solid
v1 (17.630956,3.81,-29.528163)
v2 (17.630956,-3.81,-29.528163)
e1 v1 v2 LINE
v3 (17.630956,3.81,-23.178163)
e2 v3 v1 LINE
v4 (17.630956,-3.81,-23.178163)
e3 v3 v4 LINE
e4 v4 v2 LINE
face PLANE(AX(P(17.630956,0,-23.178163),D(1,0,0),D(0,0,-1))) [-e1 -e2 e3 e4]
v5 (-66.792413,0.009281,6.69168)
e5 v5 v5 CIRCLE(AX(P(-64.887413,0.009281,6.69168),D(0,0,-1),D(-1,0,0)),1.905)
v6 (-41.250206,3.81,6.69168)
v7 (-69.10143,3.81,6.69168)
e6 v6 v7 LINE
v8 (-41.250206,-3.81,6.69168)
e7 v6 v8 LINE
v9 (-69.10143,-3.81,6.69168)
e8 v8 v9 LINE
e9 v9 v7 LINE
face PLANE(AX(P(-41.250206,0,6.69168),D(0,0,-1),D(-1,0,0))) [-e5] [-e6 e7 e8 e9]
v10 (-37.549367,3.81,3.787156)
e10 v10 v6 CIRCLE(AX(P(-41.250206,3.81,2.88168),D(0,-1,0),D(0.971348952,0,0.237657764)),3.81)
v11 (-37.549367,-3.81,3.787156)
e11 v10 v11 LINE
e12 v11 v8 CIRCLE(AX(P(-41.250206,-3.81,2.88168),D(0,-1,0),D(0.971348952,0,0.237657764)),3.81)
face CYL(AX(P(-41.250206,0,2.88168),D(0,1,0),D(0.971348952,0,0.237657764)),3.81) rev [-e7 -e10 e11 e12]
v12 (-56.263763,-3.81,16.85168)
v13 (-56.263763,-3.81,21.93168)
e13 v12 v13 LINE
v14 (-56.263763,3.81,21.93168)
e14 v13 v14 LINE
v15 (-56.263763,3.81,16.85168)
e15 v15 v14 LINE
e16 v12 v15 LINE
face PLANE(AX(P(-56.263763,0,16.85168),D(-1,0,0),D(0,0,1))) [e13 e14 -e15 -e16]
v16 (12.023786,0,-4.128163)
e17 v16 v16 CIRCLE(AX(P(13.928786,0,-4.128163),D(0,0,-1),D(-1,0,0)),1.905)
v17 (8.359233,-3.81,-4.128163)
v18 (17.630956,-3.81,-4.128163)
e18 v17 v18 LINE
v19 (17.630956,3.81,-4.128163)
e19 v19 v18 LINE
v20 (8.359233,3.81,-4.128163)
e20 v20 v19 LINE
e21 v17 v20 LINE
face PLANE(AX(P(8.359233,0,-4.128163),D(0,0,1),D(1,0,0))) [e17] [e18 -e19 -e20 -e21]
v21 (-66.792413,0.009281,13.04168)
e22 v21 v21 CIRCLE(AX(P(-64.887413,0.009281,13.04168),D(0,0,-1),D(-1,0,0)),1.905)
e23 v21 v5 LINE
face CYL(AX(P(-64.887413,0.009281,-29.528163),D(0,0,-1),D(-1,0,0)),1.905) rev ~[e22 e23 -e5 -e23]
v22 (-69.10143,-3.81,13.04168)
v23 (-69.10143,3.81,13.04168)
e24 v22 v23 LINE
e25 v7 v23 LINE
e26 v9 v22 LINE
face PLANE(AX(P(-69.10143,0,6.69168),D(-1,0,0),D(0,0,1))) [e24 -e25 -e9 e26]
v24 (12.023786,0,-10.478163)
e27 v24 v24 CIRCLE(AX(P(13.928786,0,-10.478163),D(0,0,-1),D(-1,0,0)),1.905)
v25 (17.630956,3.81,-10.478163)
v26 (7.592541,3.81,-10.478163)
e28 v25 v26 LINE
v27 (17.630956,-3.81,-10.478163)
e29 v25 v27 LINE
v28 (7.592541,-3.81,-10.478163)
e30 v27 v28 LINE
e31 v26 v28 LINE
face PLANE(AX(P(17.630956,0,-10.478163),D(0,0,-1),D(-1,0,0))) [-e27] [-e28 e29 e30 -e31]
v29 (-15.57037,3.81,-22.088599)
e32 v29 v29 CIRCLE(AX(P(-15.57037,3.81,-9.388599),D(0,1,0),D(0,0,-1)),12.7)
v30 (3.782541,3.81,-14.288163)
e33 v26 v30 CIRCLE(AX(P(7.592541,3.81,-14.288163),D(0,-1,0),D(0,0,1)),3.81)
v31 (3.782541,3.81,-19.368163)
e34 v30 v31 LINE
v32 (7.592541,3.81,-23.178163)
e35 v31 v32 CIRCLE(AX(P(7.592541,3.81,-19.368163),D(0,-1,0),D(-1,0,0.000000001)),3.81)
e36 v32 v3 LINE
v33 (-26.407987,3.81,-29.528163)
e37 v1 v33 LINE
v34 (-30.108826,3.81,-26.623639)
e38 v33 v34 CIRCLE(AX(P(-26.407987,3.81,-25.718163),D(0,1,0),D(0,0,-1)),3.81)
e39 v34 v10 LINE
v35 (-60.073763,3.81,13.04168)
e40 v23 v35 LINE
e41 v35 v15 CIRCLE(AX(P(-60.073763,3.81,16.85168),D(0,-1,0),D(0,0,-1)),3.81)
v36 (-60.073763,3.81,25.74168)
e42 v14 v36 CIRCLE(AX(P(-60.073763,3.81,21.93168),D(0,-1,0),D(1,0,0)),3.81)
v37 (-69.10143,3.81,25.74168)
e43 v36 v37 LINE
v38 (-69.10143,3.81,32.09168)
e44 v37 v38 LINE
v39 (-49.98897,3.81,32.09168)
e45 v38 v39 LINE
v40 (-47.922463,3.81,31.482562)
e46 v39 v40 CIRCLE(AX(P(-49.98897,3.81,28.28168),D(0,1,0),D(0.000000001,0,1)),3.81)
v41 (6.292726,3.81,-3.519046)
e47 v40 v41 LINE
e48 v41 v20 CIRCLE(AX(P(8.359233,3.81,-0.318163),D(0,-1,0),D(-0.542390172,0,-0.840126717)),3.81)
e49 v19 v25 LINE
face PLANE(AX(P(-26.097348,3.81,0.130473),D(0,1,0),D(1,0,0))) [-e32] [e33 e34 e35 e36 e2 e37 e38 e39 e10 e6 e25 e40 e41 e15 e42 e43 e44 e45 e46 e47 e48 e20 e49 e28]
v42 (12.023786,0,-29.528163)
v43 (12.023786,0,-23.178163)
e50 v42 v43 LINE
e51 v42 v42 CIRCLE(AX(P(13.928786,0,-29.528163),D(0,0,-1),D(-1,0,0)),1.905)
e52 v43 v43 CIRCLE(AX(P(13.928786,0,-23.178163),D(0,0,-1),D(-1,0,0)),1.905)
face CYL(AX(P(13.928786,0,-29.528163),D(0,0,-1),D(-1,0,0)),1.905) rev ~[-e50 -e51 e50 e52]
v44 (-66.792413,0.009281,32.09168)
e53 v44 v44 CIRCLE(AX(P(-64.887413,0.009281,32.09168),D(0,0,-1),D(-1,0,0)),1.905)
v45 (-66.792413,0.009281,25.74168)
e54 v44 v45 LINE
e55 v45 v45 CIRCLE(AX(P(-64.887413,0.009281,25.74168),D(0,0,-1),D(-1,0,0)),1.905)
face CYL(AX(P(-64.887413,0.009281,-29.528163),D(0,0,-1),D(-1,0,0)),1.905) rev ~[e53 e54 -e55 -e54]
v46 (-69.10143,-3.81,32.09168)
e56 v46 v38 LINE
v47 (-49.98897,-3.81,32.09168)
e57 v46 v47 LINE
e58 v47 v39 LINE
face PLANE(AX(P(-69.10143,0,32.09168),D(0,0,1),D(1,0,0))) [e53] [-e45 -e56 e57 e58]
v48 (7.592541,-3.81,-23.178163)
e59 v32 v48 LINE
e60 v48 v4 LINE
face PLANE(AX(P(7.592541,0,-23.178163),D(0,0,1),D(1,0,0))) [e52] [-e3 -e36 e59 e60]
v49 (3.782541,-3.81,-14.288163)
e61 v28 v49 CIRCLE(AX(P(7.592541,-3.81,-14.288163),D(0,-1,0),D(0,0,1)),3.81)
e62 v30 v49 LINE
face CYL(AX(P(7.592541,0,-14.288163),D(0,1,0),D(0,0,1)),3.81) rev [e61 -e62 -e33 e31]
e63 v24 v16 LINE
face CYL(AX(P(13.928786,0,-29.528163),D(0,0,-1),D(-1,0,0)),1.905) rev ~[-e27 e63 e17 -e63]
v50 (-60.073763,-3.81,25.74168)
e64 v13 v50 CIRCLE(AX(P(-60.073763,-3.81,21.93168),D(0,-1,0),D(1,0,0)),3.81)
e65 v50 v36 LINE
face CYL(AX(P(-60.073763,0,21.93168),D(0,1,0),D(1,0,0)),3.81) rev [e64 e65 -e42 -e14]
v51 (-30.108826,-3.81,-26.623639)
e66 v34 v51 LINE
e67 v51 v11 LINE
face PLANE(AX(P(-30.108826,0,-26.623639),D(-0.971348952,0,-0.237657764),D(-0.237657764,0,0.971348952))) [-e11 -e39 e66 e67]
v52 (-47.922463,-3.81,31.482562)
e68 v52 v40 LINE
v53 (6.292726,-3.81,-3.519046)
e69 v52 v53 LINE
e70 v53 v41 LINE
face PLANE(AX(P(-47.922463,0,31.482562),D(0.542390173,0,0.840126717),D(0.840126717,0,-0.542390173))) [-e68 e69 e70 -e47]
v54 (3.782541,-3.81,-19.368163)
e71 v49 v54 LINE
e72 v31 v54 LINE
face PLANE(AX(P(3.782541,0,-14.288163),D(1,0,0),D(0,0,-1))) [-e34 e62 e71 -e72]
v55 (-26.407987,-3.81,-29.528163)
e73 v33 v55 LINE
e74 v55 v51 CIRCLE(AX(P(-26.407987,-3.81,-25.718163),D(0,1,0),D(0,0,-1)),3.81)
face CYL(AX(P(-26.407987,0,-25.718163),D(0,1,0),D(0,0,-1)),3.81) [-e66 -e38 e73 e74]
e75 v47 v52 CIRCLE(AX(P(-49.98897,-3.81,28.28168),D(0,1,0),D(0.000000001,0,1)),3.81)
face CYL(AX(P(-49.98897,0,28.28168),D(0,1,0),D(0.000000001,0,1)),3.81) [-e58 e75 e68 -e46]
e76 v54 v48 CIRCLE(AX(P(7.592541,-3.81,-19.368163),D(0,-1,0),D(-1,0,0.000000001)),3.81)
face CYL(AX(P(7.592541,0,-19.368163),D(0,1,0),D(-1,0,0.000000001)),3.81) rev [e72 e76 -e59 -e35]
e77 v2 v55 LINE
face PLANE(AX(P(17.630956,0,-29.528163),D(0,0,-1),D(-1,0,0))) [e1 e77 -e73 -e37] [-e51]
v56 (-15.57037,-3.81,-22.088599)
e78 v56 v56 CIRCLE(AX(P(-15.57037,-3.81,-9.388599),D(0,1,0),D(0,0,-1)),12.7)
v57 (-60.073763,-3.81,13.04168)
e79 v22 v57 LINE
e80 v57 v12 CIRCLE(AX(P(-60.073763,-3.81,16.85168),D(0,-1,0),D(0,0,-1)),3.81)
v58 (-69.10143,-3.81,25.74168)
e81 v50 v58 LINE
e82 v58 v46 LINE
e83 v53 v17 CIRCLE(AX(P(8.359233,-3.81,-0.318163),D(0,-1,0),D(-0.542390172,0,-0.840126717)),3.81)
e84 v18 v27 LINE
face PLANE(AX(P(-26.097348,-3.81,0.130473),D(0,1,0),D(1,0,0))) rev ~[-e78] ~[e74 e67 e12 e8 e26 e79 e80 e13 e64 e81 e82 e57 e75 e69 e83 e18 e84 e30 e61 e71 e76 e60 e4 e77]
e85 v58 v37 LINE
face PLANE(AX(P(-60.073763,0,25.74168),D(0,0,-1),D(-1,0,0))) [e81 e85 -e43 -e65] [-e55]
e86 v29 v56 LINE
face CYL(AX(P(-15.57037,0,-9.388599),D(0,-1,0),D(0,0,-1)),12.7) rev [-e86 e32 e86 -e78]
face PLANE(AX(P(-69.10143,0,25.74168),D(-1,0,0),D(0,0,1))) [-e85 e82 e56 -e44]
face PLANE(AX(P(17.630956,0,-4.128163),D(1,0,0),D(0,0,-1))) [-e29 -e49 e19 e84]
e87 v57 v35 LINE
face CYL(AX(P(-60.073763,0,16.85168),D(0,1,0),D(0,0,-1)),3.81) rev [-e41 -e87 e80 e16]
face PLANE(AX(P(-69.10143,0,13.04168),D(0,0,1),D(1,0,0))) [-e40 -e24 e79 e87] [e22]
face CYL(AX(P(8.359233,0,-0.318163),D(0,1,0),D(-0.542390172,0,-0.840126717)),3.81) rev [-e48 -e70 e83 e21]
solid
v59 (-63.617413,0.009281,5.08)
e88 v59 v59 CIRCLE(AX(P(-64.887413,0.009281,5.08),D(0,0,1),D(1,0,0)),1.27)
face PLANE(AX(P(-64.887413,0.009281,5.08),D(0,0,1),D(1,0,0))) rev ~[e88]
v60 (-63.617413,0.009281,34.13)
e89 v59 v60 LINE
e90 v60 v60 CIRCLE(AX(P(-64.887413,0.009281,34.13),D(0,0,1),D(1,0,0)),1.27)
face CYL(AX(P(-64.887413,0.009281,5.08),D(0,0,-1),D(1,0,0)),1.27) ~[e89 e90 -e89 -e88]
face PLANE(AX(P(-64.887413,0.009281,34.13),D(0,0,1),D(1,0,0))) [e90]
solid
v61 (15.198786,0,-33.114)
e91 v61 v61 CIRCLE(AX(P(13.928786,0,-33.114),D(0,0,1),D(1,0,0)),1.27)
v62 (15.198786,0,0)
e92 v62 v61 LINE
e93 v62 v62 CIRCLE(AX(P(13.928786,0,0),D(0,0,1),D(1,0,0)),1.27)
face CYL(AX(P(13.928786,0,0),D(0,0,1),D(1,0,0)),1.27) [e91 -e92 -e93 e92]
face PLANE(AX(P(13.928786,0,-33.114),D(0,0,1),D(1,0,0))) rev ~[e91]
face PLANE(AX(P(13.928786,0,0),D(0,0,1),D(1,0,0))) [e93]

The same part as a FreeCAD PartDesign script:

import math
import FreeCAD as App
import Part
import Sketcher
from FreeCAD import Vector
Q = App.Units.Quantity

doc = App.newDocument("Part")
body = doc.addObject("PartDesign::Body", "Body")

sketch1 = body.newObject("Sketcher::SketchObject", "Sketch")
sketch1.AttachmentSupport = (doc.getObject("XZ_Plane"), [""])
sketch1.MapMode = "FlatFace"
sketch1.addGeometry(Part.LineSegment(Vector(-41.3, 6.7, 0), Vector(-69.1, 6.7, 0)), False)
sketch1.addGeometry(Part.LineSegment(Vector(-69.1, 6.7, 0), Vector(-69.1, 13, 0)), False)
sketch1.addGeometry(Part.LineSegment(Vector(-69.1, 13, 0), Vector(-60.1, 13, 0)), False)
sketch1.addGeometry(Part.ArcOfCircle(Part.Circle(Vector(-60.1, 16.9, 0), Vector(0, 0, 1), 3.8), math.radians(-90), math.radians(0)), False)
sketch1.addGeometry(Part.LineSegment(Vector(-56.3, 16.9, 0), Vector(-56.3, 21.9, 0)), False)
sketch1.addGeometry(Part.ArcOfCircle(Part.Circle(Vector(-60.1, 21.9, 0), Vector(0, 0, 1), 3.8), math.radians(0), math.radians(90)), False)
sketch1.addGeometry(Part.LineSegment(Vector(-60.1, 25.7, 0), Vector(-69.1, 25.7, 0)), False)
sketch1.addGeometry(Part.LineSegment(Vector(-69.1, 25.7, 0), Vector(-69.1, 32.1, 0)), False)
sketch1.addGeometry(Part.LineSegment(Vector(-69.1, 32.1, 0), Vector(-50, 32.1, 0)), False)
sketch1.addGeometry(Part.ArcOfCircle(Part.Circle(Vector(-50, 28.3, 0), Vector(0, 0, 1), 3.8), math.radians(57), math.radians(90)), False)
sketch1.addGeometry(Part.LineSegment(Vector(-47.9, 31.5, 0), Vector(6.3, -3.5, 0)), False)
sketch1.addGeometry(Part.ArcOfCircle(Part.Circle(Vector(8.4, -0.3, 0), Vector(0, 0, 1), 3.8), math.radians(-123), math.radians(-90)), False)
sketch1.addGeometry(Part.LineSegment(Vector(8.4, -4.1, 0), Vector(17.6, -4.1, 0)), False)
sketch1.addGeometry(Part.LineSegment(Vector(17.6, -4.1, 0), Vector(17.6, -10.5, 0)), False)
sketch1.addGeometry(Part.LineSegment(Vector(17.6, -10.5, 0), Vector(7.6, -10.5, 0)), False)
sketch1.addGeometry(Part.ArcOfCircle(Part.Circle(Vector(7.6, -14.3, 0), Vector(0, 0, 1), 3.8), math.radians(90), math.radians(180)), False)
sketch1.addGeometry(Part.LineSegment(Vector(3.8, -14.3, 0), Vector(3.8, -19.4, 0)), False)
sketch1.addGeometry(Part.ArcOfCircle(Part.Circle(Vector(7.6, -19.4, 0), Vector(0, 0, 1), 3.8), math.radians(180), math.radians(270)), False)
sketch1.addGeometry(Part.LineSegment(Vector(7.6, -23.2, 0), Vector(17.6, -23.2, 0)), False)
sketch1.addGeometry(Part.LineSegment(Vector(17.6, -23.2, 0), Vector(17.6, -29.5, 0)), False)
sketch1.addGeometry(Part.LineSegment(Vector(17.6, -29.5, 0), Vector(-26.4, -29.5, 0)), False)
sketch1.addGeometry(Part.ArcOfCircle(Part.Circle(Vector(-26.4, -25.7, 0), Vector(0, 0, 1), 3.8), math.radians(-166), math.radians(-90)), False)
sketch1.addGeometry(Part.LineSegment(Vector(-30.1, -26.6, 0), Vector(-37.5, 3.8, 0)), False)
sketch1.addGeometry(Part.ArcOfCircle(Part.Circle(Vector(-41.3, 2.9, 0), Vector(0, 0, 1), 3.8), math.radians(14), math.radians(90)), False)
sketch1.addGeometry(Part.Circle(Vector(-15.6, -9.4, 0), Vector(0, 0, 1), 12.7), False)
sketch1.addConstraint(Sketcher.Constraint("Coincident", 0, 2, 1, 1))
sketch1.addConstraint(Sketcher.Constraint("Coincident", 1, 2, 2, 1))
sketch1.addConstraint(Sketcher.Constraint("Tangent", 2, 2, 3, 1))
sketch1.addConstraint(Sketcher.Constraint("Tangent", 3, 2, 4, 1))
sketch1.addConstraint(Sketcher.Constraint("Tangent", 4, 2, 5, 1))
sketch1.addConstraint(Sketcher.Constraint("Tangent", 5, 2, 6, 1))
sketch1.addConstraint(Sketcher.Constraint("Coincident", 6, 2, 7, 1))
sketch1.addConstraint(Sketcher.Constraint("Coincident", 7, 2, 8, 1))
sketch1.addConstraint(Sketcher.Constraint("Tangent", 8, 2, 9, 2))
sketch1.addConstraint(Sketcher.Constraint("Tangent", 9, 1, 10, 1))
sketch1.addConstraint(Sketcher.Constraint("Tangent", 10, 2, 11, 1))
sketch1.addConstraint(Sketcher.Constraint("Tangent", 11, 2, 12, 1))
sketch1.addConstraint(Sketcher.Constraint("Coincident", 12, 2, 13, 1))
sketch1.addConstraint(Sketcher.Constraint("Coincident", 13, 2, 14, 1))
sketch1.addConstraint(Sketcher.Constraint("Tangent", 14, 2, 15, 1))
sketch1.addConstraint(Sketcher.Constraint("Tangent", 15, 2, 16, 1))
sketch1.addConstraint(Sketcher.Constraint("Tangent", 16, 2, 17, 1))
sketch1.addConstraint(Sketcher.Constraint("Tangent", 17, 2, 18, 1))
sketch1.addConstraint(Sketcher.Constraint("Coincident", 18, 2, 19, 1))
sketch1.addConstraint(Sketcher.Constraint("Coincident", 19, 2, 20, 1))
sketch1.addConstraint(Sketcher.Constraint("Tangent", 20, 2, 21, 2))
sketch1.addConstraint(Sketcher.Constraint("Tangent", 21, 1, 22, 1))
sketch1.addConstraint(Sketcher.Constraint("Tangent", 22, 2, 23, 1))
sketch1.addConstraint(Sketcher.Constraint("Tangent", 23, 2, 0, 1))
sketch1.addConstraint(Sketcher.Constraint("Horizontal", 0))
sketch1.addConstraint(Sketcher.Constraint("Vertical", 1))
sketch1.addConstraint(Sketcher.Constraint("Horizontal", 2))
sketch1.addConstraint(Sketcher.Constraint("Vertical", 4))
sketch1.addConstraint(Sketcher.Constraint("Horizontal", 6))
sketch1.addConstraint(Sketcher.Constraint("Vertical", 7))
sketch1.addConstraint(Sketcher.Constraint("Horizontal", 8))
sketch1.addConstraint(Sketcher.Constraint("Horizontal", 12))
sketch1.addConstraint(Sketcher.Constraint("Vertical", 13))
sketch1.addConstraint(Sketcher.Constraint("Horizontal", 14))
sketch1.addConstraint(Sketcher.Constraint("Vertical", 16))
sketch1.addConstraint(Sketcher.Constraint("Horizontal", 18))
sketch1.addConstraint(Sketcher.Constraint("Vertical", 19))
sketch1.addConstraint(Sketcher.Constraint("Horizontal", 20))
sketch1.addConstraint(Sketcher.Constraint("Equal", 3, 5))
sketch1.addConstraint(Sketcher.Constraint("Equal", 5, 9))
sketch1.addConstraint(Sketcher.Constraint("Equal", 9, 11))
sketch1.addConstraint(Sketcher.Constraint("Equal", 11, 15))
sketch1.addConstraint(Sketcher.Constraint("Equal", 15, 17))
sketch1.addConstraint(Sketcher.Constraint("Equal", 17, 21))
sketch1.addConstraint(Sketcher.Constraint("Equal", 21, 23))
sketch1.addConstraint(Sketcher.Constraint("Vertical", 1, 2, 6, 2))
sketch1.addConstraint(Sketcher.Constraint("Vertical", 13, 2, 18, 2))
sketch1.addConstraint(Sketcher.Constraint("Equal", 1, 7))
sketch1.addConstraint(Sketcher.Constraint("Equal", 7, 13))
sketch1.addConstraint(Sketcher.Constraint("Equal", 4, 16))
sketch1.addConstraint(Sketcher.Constraint("Equal", 13, 19))
sketch1.addConstraint(Sketcher.Constraint("Diameter", 24, Q("1 in")))
sketch1.addConstraint(Sketcher.Constraint("Radius", 3, Q("0.15 in")))
sketch1.addConstraint(Sketcher.Constraint("DistanceY", 4, 1, 4, 2, Q("0.2 in")))
sketch1.addConstraint(Sketcher.Constraint("DistanceY", 21, 3, 11, 3, Q("1 in")))
sketch1.addConstraint(Sketcher.Constraint("DistanceX", 8, 1, 8, 2, 19.11246))
sketch1.addConstraint(Sketcher.Constraint("DistanceY", 24, 3, -1, 1, 9.388599))
sketch1.addConstraint(Sketcher.Constraint("DistanceX", 4, 2, 9, 1, 8.3413))
sketch1.addConstraint(Sketcher.Constraint("DistanceX", 0, 2, 0, 1, 27.851224))
sketch1.addConstraint(Sketcher.Constraint("DistanceX", 2, 1, 2, 2, 9.027667))
sketch1.addConstraint(Sketcher.Constraint("DistanceX", 12, 1, 12, 2, 9.271724))
sketch1.addConstraint(Sketcher.Constraint("DistanceX", 14, 2, 14, 1, 10.038415))
sketch1.addConstraint(Sketcher.Constraint("DistanceX", 20, 2, 20, 1, 44.038943))
sketch1.addConstraint(Sketcher.Constraint("DistanceY", -1, 1, 3, 3, 16.85168))
sketch1.addConstraint(Sketcher.Constraint("DistanceX", 9, 3, -1, 1, 49.98897))
sketch1.addConstraint(Sketcher.Constraint("DistanceX", -1, 1, 15, 3, 7.592541))
sketch1.addConstraint(Sketcher.Constraint("DistanceX", 24, 3, -1, 1, 15.57037))
pad1 = body.newObject("PartDesign::Pad", "Pad")
pad1.Profile = sketch1
pad1.Length = Q("0.3 in")
pad1.Midplane = True

sketch2 = body.newObject("Sketcher::SketchObject", "Sketch001")
sketch2.AttachmentSupport = (doc.getObject("XY_Plane"), [""])
sketch2.MapMode = "FlatFace"
sketch2.AttachmentOffset = App.Placement(Vector(0, 0, -29.528163), App.Rotation())
sketch2.addGeometry(Part.Circle(Vector(13.9, 0, 0), Vector(0, 0, 1), 1.9), False)
sketch2.addGeometry(Part.Circle(Vector(-64.9, 0, 0), Vector(0, 0, 1), 1.9), False)
sketch2.addConstraint(Sketcher.Constraint("Equal", 0, 1))
sketch2.addConstraint(Sketcher.Constraint("PointOnObject", 0, 3, -1))
sketch2.addConstraint(Sketcher.Constraint("Diameter", 0, Q("0.15 in")))
sketch2.addConstraint(Sketcher.Constraint("DistanceX", 1, 3, 0, 3, Q("3.103 in")))
sketch2.addConstraint(Sketcher.Constraint("DistanceY", -1, 1, 1, 3, 0.009281))
sketch2.addConstraint(Sketcher.Constraint("DistanceX", -1, 1, 0, 3, 13.928786))
pocket1 = body.newObject("PartDesign::Pocket", "Pocket")
pocket1.Profile = sketch2
pocket1.Length = Q("7.225 in")
pocket1.Midplane = True
body2 = doc.addObject("PartDesign::Body", "Body001")

sketch3 = body2.newObject("Sketcher::SketchObject", "Sketch002")
sketch3.AttachmentSupport = (doc.getObject("XY_Plane001"), [""])
sketch3.MapMode = "FlatFace"
sketch3.addGeometry(Part.Circle(Vector(13.9, 0, 0), Vector(0, 0, 1), 1.3), False)
sketch3.addConstraint(Sketcher.Constraint("PointOnObject", 0, 3, -1))
sketch3.addConstraint(Sketcher.Constraint("Diameter", 0, Q("0.1 in")))
sketch3.addConstraint(Sketcher.Constraint("DistanceX", -1, 1, 0, 3, 13.928786))
pad2 = body2.newObject("PartDesign::Pad", "Pad001")
pad2.Profile = sketch3
pad2.Length = 33.114
pad2.Reversed = True
body3 = doc.addObject("PartDesign::Body", "Body002")

sketch4 = body3.newObject("Sketcher::SketchObject", "Sketch003")
sketch4.AttachmentSupport = (doc.getObject("XY_Plane002"), [""])
sketch4.MapMode = "FlatFace"
sketch4.AttachmentOffset = App.Placement(Vector(0, 0, 0.2 * 25.4), App.Rotation())
sketch4.addGeometry(Part.Circle(Vector(-64.9, 0, 0), Vector(0, 0, 1), 1.3), False)
sketch4.addConstraint(Sketcher.Constraint("Diameter", 0, Q("0.1 in")))
sketch4.addConstraint(Sketcher.Constraint("DistanceY", -1, 1, 0, 3, 0.009281))
sketch4.addConstraint(Sketcher.Constraint("DistanceX", 0, 3, -1, 1, 64.887413))
pad3 = body3.newObject("PartDesign::Pad", "Pad002")
pad3.Profile = sketch4
pad3.Length = 29.05

doc.recompute()
